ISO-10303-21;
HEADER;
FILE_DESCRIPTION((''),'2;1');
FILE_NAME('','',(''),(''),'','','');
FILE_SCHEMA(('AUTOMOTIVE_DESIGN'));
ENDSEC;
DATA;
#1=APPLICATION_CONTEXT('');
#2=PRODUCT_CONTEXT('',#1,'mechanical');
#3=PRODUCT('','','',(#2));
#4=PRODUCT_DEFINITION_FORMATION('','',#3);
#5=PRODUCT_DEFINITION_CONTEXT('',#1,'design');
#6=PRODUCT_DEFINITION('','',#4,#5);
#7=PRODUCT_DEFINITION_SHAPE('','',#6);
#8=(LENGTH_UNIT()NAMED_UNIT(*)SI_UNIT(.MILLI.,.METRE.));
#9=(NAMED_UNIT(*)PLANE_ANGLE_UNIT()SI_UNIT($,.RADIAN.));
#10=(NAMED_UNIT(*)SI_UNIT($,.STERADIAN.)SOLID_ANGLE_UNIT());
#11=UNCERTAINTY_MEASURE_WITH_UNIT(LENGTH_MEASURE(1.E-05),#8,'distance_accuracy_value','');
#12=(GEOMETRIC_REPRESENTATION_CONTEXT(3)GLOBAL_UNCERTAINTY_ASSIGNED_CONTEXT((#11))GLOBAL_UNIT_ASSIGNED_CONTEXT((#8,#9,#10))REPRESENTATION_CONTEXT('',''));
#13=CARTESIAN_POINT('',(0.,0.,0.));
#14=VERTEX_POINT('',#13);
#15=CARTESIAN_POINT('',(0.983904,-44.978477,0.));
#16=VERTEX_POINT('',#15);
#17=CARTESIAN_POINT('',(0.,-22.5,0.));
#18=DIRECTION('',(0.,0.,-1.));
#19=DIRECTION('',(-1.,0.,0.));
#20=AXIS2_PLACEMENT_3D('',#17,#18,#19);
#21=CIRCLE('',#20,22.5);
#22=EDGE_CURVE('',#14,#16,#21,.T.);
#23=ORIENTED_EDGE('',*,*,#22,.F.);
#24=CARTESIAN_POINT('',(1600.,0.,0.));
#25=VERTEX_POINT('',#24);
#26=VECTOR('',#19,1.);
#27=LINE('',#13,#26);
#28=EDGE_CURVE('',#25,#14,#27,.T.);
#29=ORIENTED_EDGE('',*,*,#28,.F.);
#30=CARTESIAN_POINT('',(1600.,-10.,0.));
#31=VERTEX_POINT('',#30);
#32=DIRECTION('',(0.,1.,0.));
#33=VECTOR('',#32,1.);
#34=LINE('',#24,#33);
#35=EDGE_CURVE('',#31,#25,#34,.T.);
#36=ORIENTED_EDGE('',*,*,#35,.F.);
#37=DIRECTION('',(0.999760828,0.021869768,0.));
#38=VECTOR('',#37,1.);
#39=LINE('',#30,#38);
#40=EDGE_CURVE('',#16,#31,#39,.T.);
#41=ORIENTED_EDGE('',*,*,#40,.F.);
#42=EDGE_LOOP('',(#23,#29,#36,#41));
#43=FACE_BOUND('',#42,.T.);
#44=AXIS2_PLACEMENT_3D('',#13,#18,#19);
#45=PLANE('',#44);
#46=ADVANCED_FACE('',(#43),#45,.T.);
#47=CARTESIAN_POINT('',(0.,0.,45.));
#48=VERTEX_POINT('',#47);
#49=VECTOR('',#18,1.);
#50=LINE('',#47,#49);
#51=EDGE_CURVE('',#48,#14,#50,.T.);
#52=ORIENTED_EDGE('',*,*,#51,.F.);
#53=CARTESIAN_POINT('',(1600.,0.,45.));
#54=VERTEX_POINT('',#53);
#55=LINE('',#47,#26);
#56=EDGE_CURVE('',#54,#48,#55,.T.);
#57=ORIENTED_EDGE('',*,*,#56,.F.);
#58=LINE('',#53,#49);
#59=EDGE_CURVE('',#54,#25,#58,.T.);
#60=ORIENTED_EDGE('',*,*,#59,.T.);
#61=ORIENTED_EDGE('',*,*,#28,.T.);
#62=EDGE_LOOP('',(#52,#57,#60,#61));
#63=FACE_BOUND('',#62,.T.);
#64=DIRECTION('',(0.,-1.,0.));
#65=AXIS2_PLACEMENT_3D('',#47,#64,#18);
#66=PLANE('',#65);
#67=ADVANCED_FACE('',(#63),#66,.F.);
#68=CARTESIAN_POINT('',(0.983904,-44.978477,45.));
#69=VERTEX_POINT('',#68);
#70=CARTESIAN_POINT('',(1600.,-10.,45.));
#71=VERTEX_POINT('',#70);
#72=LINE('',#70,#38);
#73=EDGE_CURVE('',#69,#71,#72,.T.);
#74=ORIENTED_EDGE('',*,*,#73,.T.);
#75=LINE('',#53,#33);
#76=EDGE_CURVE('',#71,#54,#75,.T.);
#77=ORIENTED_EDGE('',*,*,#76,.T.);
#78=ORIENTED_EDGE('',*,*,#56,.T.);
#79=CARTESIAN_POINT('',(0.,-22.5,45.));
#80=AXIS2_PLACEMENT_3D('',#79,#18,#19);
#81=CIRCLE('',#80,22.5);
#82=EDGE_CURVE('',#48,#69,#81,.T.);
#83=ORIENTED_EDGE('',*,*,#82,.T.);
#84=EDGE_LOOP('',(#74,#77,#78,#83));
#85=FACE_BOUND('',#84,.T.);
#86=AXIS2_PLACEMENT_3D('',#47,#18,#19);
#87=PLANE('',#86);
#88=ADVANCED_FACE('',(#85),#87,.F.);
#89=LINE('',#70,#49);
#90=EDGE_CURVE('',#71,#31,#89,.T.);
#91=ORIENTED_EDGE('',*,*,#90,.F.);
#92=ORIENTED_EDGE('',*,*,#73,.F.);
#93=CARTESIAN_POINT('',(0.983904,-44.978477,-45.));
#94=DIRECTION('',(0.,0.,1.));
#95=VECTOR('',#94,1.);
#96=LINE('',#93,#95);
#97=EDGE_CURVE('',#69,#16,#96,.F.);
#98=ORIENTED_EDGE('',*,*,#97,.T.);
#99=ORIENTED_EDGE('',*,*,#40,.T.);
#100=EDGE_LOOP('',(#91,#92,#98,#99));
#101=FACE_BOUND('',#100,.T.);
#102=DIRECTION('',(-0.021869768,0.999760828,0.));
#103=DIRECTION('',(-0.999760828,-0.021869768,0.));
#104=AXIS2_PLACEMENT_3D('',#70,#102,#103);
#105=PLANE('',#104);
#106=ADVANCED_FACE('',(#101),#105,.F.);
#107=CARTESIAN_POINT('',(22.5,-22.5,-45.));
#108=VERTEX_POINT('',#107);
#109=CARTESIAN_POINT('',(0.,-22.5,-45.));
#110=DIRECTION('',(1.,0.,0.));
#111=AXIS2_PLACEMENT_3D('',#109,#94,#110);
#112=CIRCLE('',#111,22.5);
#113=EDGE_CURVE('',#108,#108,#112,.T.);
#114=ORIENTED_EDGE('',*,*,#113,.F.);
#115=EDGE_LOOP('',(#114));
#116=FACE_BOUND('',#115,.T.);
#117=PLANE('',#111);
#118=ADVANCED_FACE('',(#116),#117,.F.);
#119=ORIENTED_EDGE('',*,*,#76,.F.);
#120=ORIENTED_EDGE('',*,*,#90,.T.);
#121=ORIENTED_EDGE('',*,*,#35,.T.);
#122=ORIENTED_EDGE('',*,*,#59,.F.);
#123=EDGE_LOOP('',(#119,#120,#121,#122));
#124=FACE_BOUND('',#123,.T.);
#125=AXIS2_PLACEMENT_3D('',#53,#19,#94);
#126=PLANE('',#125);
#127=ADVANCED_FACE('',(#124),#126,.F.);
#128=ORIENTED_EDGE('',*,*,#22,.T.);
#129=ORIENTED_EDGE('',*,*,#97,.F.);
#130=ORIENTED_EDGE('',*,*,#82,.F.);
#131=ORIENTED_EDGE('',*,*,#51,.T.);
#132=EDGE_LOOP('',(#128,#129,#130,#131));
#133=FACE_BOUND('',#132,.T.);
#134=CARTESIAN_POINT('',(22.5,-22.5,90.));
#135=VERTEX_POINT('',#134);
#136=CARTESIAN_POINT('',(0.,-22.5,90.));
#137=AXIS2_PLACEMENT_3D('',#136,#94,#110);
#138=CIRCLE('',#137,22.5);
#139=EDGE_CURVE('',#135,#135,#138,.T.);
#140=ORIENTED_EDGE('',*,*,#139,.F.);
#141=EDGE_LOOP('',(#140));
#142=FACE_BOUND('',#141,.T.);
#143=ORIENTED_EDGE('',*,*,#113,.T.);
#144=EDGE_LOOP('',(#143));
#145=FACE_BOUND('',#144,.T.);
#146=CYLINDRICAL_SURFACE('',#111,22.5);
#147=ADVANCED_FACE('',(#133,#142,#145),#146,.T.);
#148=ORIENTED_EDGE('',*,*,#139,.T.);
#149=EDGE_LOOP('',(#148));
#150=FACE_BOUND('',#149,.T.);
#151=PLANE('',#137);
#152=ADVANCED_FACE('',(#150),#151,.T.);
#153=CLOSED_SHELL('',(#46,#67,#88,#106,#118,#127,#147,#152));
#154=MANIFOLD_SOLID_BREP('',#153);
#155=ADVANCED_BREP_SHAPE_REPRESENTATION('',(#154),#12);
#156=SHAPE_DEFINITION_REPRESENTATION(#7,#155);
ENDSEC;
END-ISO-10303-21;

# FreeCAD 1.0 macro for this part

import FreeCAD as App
import Part
import Sketcher

V = App.Vector
Q = App.Units.Quantity


def add_polygon(sketch, points):
    """Adds a closed chain of lines whose ends are joined by coincident constraints."""
    first, n = sketch.GeometryCount, len(points)
    for a, b in zip(points, points[1:] + points[:1]):
        sketch.addGeometry(Part.LineSegment(App.Vector(*a, 0), App.Vector(*b, 0)), False)
    for i in range(n):
        sketch.addConstraint(Sketcher.Constraint("Coincident", first + i, 2, first + (i + 1) % n, 1))

doc = App.newDocument("Part")
body = doc.addObject("PartDesign::Body", "Body")

# Sketch on XY plane
sketch1 = body.newObject("Sketcher::SketchObject", "Sketch")
sketch1.AttachmentSupport = (doc.getObject("XY_Plane"), [""])
sketch1.MapMode = "FlatFace"
add_polygon(sketch1, [(1600, 0), (0, 0), (0, -45), (1600, -10)])  # lines 0-3
sketch1.addConstraint([
    Sketcher.Constraint("Horizontal", 0),
    Sketcher.Constraint("Vertical", 1),
    Sketcher.Constraint("Vertical", 3),
    Sketcher.Constraint("Coincident", 0, 2, -1, 1),
    Sketcher.Constraint("DistanceX", 0, 2, 0, 1, Q("1600 mm")),
    Sketcher.Constraint("DistanceY", 1, 2, 1, 1, Q("45 mm")),
    Sketcher.Constraint("DistanceY", 3, 1, 3, 2, Q("10 mm")),
])
pad1 = body.newObject("PartDesign::Pad", "Pad")
pad1.Profile = sketch1
pad1.Length = 45

# Sketch on XY plane
sketch2 = body.newObject("Sketcher::SketchObject", "Sketch001")
sketch2.AttachmentSupport = (doc.getObject("XY_Plane"), [""])
sketch2.MapMode = "FlatFace"
sketch2.AttachmentOffset = App.Placement(V(0, 0, 45), App.Rotation())
sketch2.addGeometry(Part.Circle(V(0, -22, 0), V(0, 0, 1), 22), False)
sketch2.addConstraint([
    Sketcher.Constraint("PointOnObject", 0, 3, -2),
    Sketcher.Constraint("Diameter", 0, Q("45 mm")),
    Sketcher.Constraint("DistanceY", 0, 3, -1, 1, Q("22.5 mm")),
])
pad2 = body.newObject("PartDesign::Pad", "Pad001")
pad2.Profile = sketch2
pad2.Type = "TwoLengths"
pad2.Length = 45
pad2.Length2 = 90

doc.recompute()
